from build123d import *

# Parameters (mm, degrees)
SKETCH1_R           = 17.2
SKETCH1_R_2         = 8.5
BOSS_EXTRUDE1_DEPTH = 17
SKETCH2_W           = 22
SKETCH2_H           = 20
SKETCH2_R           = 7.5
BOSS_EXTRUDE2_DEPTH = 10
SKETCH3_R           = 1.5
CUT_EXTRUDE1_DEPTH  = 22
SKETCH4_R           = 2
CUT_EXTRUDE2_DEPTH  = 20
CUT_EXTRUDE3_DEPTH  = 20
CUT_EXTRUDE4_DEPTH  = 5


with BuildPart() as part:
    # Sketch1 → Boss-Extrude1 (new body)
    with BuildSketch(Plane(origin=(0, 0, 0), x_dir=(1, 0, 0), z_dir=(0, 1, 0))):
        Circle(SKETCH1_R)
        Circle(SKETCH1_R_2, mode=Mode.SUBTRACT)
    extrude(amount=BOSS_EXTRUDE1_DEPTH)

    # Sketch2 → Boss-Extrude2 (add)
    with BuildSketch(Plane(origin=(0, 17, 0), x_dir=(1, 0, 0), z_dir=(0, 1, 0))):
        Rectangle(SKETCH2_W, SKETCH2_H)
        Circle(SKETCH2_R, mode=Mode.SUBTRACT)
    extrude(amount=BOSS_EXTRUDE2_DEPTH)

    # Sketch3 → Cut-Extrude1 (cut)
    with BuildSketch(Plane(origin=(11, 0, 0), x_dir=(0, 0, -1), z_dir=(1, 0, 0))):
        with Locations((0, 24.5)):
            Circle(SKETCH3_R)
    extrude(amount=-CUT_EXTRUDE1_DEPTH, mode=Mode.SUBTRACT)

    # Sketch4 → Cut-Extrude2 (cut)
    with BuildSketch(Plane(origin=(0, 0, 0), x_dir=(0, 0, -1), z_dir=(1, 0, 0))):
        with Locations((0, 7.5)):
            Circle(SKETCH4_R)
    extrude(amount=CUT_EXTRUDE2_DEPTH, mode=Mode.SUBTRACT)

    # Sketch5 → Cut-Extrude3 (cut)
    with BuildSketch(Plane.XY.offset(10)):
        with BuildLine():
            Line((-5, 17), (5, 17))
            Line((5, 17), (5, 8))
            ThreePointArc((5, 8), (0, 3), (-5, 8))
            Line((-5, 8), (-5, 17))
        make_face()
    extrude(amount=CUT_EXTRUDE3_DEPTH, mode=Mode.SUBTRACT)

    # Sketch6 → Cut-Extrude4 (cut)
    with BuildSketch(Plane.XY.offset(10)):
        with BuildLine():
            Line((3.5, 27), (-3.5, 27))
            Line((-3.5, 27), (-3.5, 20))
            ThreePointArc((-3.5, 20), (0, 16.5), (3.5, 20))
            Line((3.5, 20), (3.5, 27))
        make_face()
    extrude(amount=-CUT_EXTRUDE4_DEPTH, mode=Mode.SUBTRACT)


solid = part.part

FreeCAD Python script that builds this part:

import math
import FreeCAD as App
import Part
import Sketcher

V = App.Vector
Q = App.Units.Quantity


def add_polygon(sketch, points):
    """Adds a closed chain of lines whose ends are joined by coincident constraints."""
    first, n = sketch.GeometryCount, len(points)
    for a, b in zip(points, points[1:] + points[:1]):
        sketch.addGeometry(Part.LineSegment(App.Vector(*a, 0), App.Vector(*b, 0)), False)
    for i in range(n):
        sketch.addConstraint(Sketcher.Constraint("Coincident", first + i, 2, first + (i + 1) % n, 1))

doc = App.newDocument("Part")
body = doc.addObject("PartDesign::Body", "Body")

# Sketch on XZ plane
sketch1 = body.newObject("Sketcher::SketchObject", "Sketch")
sketch1.AttachmentSupport = (doc.getObject("XZ_Plane"), [""])
sketch1.MapMode = "FlatFace"
sketch1.addGeometry([
    Part.Circle(V(0, 0, 0), V(0, 0, 1), 17),
    Part.Circle(V(0, 0, 0), V(0, 0, 1), 8),
], False)
sketch1.addConstraint([
    Sketcher.Constraint("Coincident", 0, 3, -1, 1),
    Sketcher.Constraint("Coincident", 1, 3, -1, 1),
    Sketcher.Constraint("Diameter", 1, Q("17 mm")),
    Sketcher.Constraint("Diameter", 0, Q("34.4 mm")),
])
pad1 = body.newObject("PartDesign::Pad", "Pad")
pad1.Profile = sketch1
pad1.Length = 17
pad1.Reversed = True

# Sketch on XZ plane
sketch2 = body.newObject("Sketcher::SketchObject", "Sketch001")
sketch2.AttachmentSupport = (doc.getObject("XZ_Plane"), [""])
sketch2.MapMode = "FlatFace"
sketch2.AttachmentOffset = App.Placement(V(0, 0, -17), App.Rotation())
add_polygon(sketch2, [(-11, -10), (-11, 10), (11, 10), (11, -10)])  # lines 0-3
sketch2.addGeometry(Part.Circle(V(0, 0, 0), V(0, 0, 1), 8), False)  # 4
sketch2.addConstraint([
    Sketcher.Constraint("Vertical", 0),
    Sketcher.Constraint("Horizontal", 1),
    Sketcher.Constraint("Vertical", 2),
    Sketcher.Constraint("Horizontal", 3),
    Sketcher.Constraint("Coincident", 4, 3, -1, 1),
    Sketcher.Constraint("Symmetric", 0, 2, 2, 2, -1, 1),
    Sketcher.Constraint("Diameter", 4, Q("15 mm")),
    Sketcher.Constraint("DistanceX", 1, 1, 1, 2, Q("22 mm")),
    Sketcher.Constraint("DistanceY", 0, 1, 0, 2, Q("20 mm")),
])
pad2 = body.newObject("PartDesign::Pad", "Pad001")
pad2.Profile = sketch2
pad2.Length = 10
pad2.Reversed = True

# Sketch on YZ plane
sketch3 = body.newObject("Sketcher::SketchObject", "Sketch002")
sketch3.AttachmentSupport = (doc.getObject("YZ_Plane"), [""])
sketch3.MapMode = "FlatFace"
sketch3.AttachmentOffset = App.Placement(V(0, 0, 11), App.Rotation())
sketch3.addGeometry(Part.Circle(V(24.5, 0, 0), V(0, 0, 1), 1.5), False)
sketch3.addConstraint([
    Sketcher.Constraint("PointOnObject", 0, 3, -1),
    Sketcher.Constraint("Diameter", 0, Q("3 mm")),
    Sketcher.Constraint("DistanceX", -1, 1, 0, 3, Q("24.5 mm")),
])
pocket1 = body.newObject("PartDesign::Pocket", "Pocket")
pocket1.Profile = sketch3
pocket1.Length = 22

# Sketch on YZ plane
sketch4 = body.newObject("Sketcher::SketchObject", "Sketch003")
sketch4.AttachmentSupport = (doc.getObject("YZ_Plane"), [""])
sketch4.MapMode = "FlatFace"
sketch4.addGeometry(Part.Circle(V(7.5, 0, 0), V(0, 0, 1), 2), False)
sketch4.addConstraint([
    Sketcher.Constraint("PointOnObject", 0, 3, -1),
    Sketcher.Constraint("Diameter", 0, Q("4 mm")),
    Sketcher.Constraint("DistanceX", -1, 1, 0, 3, Q("7.5 mm")),
])
pocket2 = body.newObject("PartDesign::Pocket", "Pocket001")
pocket2.Profile = sketch4
pocket2.Length = 20
pocket2.Reversed = True

# Sketch on XY plane
sketch5 = body.newObject("Sketcher::SketchObject", "Sketch004")
sketch5.AttachmentSupport = (doc.getObject("XY_Plane"), [""])
sketch5.MapMode = "FlatFace"
sketch5.AttachmentOffset = App.Placement(V(0, 0, 10), App.Rotation())
sketch5.addGeometry([
    Part.LineSegment(V(5, 17, 0), V(-5, 17, 0)),
    Part.LineSegment(V(-5, 17, 0), V(-5, 8, 0)),
    Part.ArcOfCircle(Part.Circle(V(0, 8, 0), V(0, 0, 1), 5), math.radians(180), math.radians(360)),
    Part.LineSegment(V(5, 8, 0), V(5, 17, 0)),
], False)
sketch5.addConstraint([
    Sketcher.Constraint("Coincident", 0, 2, 1, 1),
    Sketcher.Constraint("Tangent", 1, 2, 2, 1),
    Sketcher.Constraint("Tangent", 2, 2, 3, 1),
    Sketcher.Constraint("Coincident", 3, 2, 0, 1),
    Sketcher.Constraint("Horizontal", 0),
    Sketcher.Constraint("Vertical", 1),
    Sketcher.Constraint("Vertical", 3),
    Sketcher.Constraint("PointOnObject", 2, 3, -2),
    Sketcher.Constraint("Radius", 2, Q("5 mm")),
    Sketcher.Constraint("DistanceY", 1, 2, 1, 1, Q("9 mm")),
    Sketcher.Constraint("DistanceY", -1, 1, 2, 3, Q("8 mm")),
])
pocket3 = body.newObject("PartDesign::Pocket", "Pocket002")
pocket3.Profile = sketch5
pocket3.Length = 20
pocket3.Reversed = True

# Sketch on XY plane
sketch6 = body.newObject("Sketcher::SketchObject", "Sketch005")
sketch6.AttachmentSupport = (doc.getObject("XY_Plane"), [""])
sketch6.MapMode = "FlatFace"
sketch6.AttachmentOffset = App.Placement(V(0, 0, 10), App.Rotation())
sketch6.addGeometry([
    Part.LineSegment(V(3.5, 27, 0), V(-3.5, 27, 0)),
    Part.LineSegment(V(-3.5, 27, 0), V(-3.5, 20, 0)),
    Part.ArcOfCircle(Part.Circle(V(0, 20, 0), V(0, 0, 1), 3.5), math.radians(180), math.radians(360)),
    Part.LineSegment(V(3.5, 20, 0), V(3.5, 27, 0)),
], False)
sketch6.addConstraint([
    Sketcher.Constraint("Coincident", 0, 2, 1, 1),
    Sketcher.Constraint("Tangent", 1, 2, 2, 1),
    Sketcher.Constraint("Tangent", 2, 2, 3, 1),
    Sketcher.Constraint("Coincident", 3, 2, 0, 1),
    Sketcher.Constraint("Horizontal", 0),
    Sketcher.Constraint("Vertical", 1),
    Sketcher.Constraint("Vertical", 3),
    Sketcher.Constraint("PointOnObject", 2, 3, -2),
    Sketcher.Constraint("Equal", 0, 1),
    Sketcher.Constraint("Radius", 2, Q("3.5 mm")),
    Sketcher.Constraint("DistanceY", -1, 1, 2, 3, Q("20 mm")),
])
pocket4 = body.newObject("PartDesign::Pocket", "Pocket003")
pocket4.Profile = sketch6
pocket4.Length = 5

doc.recompute()
